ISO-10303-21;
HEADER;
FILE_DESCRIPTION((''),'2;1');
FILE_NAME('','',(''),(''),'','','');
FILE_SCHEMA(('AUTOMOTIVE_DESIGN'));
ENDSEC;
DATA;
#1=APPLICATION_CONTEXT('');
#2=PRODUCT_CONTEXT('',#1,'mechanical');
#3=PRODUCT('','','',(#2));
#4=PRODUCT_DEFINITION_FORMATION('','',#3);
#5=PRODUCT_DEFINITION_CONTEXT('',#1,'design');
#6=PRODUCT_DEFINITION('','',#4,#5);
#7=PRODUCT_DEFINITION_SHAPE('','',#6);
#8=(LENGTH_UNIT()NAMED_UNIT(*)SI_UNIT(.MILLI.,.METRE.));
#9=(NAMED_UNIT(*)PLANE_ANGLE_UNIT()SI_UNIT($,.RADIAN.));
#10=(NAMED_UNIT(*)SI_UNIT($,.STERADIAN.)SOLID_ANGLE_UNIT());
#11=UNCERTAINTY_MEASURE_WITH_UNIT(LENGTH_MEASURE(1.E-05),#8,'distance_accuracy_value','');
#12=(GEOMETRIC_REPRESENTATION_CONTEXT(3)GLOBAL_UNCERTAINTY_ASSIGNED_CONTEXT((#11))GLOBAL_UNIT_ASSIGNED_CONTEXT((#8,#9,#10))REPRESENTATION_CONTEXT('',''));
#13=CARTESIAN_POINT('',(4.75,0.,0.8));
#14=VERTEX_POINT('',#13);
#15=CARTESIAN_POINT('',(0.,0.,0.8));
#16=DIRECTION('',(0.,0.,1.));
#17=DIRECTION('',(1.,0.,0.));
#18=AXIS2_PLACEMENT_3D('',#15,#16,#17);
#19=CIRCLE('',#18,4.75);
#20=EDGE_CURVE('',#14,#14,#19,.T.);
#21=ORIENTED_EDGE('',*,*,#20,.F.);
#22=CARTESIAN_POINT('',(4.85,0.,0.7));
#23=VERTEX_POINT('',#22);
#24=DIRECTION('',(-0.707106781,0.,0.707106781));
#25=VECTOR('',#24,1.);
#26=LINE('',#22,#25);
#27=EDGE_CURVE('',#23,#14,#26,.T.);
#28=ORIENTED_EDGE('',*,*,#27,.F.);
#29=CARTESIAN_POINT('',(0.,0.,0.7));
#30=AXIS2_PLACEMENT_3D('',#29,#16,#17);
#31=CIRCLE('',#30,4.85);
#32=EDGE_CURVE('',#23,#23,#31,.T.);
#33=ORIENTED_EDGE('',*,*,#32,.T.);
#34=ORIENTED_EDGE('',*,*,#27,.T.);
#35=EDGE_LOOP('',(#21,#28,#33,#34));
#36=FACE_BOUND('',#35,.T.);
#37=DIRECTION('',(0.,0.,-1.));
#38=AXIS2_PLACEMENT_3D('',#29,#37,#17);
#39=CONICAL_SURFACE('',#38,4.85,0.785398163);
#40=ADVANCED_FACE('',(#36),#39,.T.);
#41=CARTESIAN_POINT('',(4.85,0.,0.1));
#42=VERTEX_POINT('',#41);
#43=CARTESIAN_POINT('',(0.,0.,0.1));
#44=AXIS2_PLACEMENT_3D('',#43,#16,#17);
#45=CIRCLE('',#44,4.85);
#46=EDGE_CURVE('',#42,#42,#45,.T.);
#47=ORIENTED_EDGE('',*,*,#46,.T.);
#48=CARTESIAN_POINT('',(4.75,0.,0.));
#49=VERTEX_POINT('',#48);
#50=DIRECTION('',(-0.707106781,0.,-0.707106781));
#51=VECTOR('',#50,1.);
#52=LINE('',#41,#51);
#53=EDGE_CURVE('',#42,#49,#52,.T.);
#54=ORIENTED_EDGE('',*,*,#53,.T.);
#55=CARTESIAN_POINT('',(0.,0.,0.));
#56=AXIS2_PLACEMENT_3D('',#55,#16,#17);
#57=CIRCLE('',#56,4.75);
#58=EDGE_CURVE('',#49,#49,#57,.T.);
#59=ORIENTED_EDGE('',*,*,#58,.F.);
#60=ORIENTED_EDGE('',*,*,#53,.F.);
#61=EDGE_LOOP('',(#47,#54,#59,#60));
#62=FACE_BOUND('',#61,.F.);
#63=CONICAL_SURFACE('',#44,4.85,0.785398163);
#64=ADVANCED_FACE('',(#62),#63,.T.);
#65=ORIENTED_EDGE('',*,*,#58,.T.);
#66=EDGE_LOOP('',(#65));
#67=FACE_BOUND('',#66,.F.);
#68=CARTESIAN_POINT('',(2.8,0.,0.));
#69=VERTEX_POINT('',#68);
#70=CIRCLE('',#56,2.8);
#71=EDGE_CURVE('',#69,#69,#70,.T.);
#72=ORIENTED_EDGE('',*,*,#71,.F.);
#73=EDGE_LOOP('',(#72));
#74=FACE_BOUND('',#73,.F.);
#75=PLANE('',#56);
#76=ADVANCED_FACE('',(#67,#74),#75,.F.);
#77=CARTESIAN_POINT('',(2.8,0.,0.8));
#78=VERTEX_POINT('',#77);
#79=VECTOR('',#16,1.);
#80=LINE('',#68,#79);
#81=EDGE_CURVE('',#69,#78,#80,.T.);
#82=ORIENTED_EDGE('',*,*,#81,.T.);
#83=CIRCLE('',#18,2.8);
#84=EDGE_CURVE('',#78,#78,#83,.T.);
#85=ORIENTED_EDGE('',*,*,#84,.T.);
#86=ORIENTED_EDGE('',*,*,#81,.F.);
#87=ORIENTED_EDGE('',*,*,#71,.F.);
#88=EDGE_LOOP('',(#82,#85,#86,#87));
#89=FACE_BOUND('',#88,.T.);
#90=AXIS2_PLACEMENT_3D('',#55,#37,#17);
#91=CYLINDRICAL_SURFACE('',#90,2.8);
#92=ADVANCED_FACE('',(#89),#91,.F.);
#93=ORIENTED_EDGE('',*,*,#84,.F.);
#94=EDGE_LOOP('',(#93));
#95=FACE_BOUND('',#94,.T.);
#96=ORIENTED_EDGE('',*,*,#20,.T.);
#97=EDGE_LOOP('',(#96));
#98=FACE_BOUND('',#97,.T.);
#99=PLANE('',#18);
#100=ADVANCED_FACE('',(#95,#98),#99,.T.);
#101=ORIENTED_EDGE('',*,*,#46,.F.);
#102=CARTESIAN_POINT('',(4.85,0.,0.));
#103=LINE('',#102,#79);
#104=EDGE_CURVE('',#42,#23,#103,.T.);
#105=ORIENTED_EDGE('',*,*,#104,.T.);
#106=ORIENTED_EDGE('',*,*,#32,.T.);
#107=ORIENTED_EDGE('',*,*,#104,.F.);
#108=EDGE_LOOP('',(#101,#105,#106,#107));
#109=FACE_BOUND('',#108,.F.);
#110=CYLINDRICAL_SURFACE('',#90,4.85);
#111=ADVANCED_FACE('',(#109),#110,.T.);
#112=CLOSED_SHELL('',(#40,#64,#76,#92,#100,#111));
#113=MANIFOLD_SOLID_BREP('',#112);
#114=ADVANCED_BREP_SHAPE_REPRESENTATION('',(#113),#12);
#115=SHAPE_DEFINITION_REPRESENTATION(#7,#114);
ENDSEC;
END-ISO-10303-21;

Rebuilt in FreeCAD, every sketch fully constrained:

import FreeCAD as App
import Part
import Sketcher
from FreeCAD import Vector


def edges_at(feature, points):
    """Names of the edges that pass closest to the given points."""
    edges = feature.Shape.Edges
    near = lambda p: min(range(len(edges)), key=lambda i: edges[i].distToShape(Part.Vertex(*p))[0])
    return sorted({f"Edge{near(p) + 1}" for p in points})

doc = App.newDocument("Part")
body = doc.addObject("PartDesign::Body", "Body")

sketch1 = body.newObject("Sketcher::SketchObject", "Sketch")
sketch1.AttachmentSupport = (doc.getObject("XY_Plane"), [""])
sketch1.MapMode = "FlatFace"
sketch1.addGeometry(Part.Circle(Vector(0, 0, 0), Vector(0, 0, 1), 4.8), False)
sketch1.addGeometry(Part.Circle(Vector(0, 0, 0), Vector(0, 0, 1), 2.8), False)
sketch1.addConstraint(Sketcher.Constraint("Coincident", 0, 3, -1, 1))
sketch1.addConstraint(Sketcher.Constraint("Coincident", 1, 3, -1, 1))
sketch1.addConstraint(Sketcher.Constraint("Diameter", 0, 9.7))
sketch1.addConstraint(Sketcher.Constraint("Diameter", 1, 5.6))
pad1 = body.newObject("PartDesign::Pad", "Pad")
pad1.Profile = sketch1
pad1.Length = 0.8
doc.recompute()

chamfer = body.newObject("PartDesign::Chamfer", "Chamfer")
chamfer.Base = (pad1, edges_at(pad1, [(-4.85, 0, 0.8), (-4.85, 0, 0)]))
chamfer.Size = 0.1

doc.recompute()
